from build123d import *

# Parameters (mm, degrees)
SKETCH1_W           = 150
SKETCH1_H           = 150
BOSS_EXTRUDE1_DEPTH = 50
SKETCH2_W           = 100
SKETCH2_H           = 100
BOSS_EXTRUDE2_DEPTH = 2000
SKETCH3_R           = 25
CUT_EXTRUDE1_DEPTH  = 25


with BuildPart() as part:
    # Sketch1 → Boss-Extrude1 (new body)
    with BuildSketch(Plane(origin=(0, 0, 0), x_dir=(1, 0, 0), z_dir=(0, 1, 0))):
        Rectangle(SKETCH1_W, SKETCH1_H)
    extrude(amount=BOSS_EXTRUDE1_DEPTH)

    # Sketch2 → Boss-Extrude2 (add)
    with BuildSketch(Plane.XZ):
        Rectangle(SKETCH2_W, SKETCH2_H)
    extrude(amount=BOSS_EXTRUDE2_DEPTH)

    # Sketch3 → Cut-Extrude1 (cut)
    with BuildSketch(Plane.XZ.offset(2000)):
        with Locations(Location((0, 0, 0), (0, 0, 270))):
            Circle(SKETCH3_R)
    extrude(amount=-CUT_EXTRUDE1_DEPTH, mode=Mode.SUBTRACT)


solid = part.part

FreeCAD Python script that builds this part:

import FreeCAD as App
import Part
import Sketcher

V = App.Vector

doc = App.newDocument("Part")
body = doc.addObject("PartDesign::Body", "Body")

# Sketch on XZ plane
sketch1 = doc.addObject("Sketcher::SketchObject", "Sketch")
body.addObject(sketch1)
sketch1.AttachmentSupport = (doc.XZ_Plane, [""])
sketch1.MapMode = "FlatFace"
sketch1.addGeometry([
    Part.LineSegment(V(-75, -75, 0), V(-75, 75, 0)),
    Part.LineSegment(V(-75, 75, 0), V(75, 75, 0)),
    Part.LineSegment(V(75, 75, 0), V(75, -75, 0)),
    Part.LineSegment(V(75, -75, 0), V(-75, -75, 0)),
], False)
sketch1.addConstraint([
    Sketcher.Constraint("Coincident", 0, 2, 1, 1),
    Sketcher.Constraint("Coincident", 1, 2, 2, 1),
    Sketcher.Constraint("Coincident", 2, 2, 3, 1),
    Sketcher.Constraint("Coincident", 3, 2, 0, 1),
    Sketcher.Constraint("Vertical", 0),
    Sketcher.Constraint("Horizontal", 1),
    Sketcher.Constraint("Vertical", 2),
    Sketcher.Constraint("Horizontal", 3),
    Sketcher.Constraint("Symmetric", 0, 2, 2, 2, -1, 1),
    Sketcher.Constraint("Equal", 3, 0),
    Sketcher.Constraint("DistanceX", 1, 1, 1, 2, 150.0),
])
pad1 = doc.addObject("PartDesign::Pad", "Pad")
body.addObject(pad1)
pad1.Profile = sketch1
pad1.Length = 50
pad1.Reversed = True

# Sketch on XZ plane
sketch2 = doc.addObject("Sketcher::SketchObject", "Sketch001")
body.addObject(sketch2)
sketch2.AttachmentSupport = (doc.XZ_Plane, [""])
sketch2.MapMode = "FlatFace"
sketch2.addGeometry([
    Part.LineSegment(V(-50, 50, 0), V(-50, -50, 0)),
    Part.LineSegment(V(-50, -50, 0), V(50, -50, 0)),
    Part.LineSegment(V(50, -50, 0), V(50, 50, 0)),
    Part.LineSegment(V(50, 50, 0), V(-50, 50, 0)),
], False)
sketch2.addConstraint([
    Sketcher.Constraint("Coincident", 0, 2, 1, 1),
    Sketcher.Constraint("Coincident", 1, 2, 2, 1),
    Sketcher.Constraint("Coincident", 2, 2, 3, 1),
    Sketcher.Constraint("Coincident", 3, 2, 0, 1),
    Sketcher.Constraint("Vertical", 0),
    Sketcher.Constraint("Horizontal", 1),
    Sketcher.Constraint("Vertical", 2),
    Sketcher.Constraint("Horizontal", 3),
    Sketcher.Constraint("Symmetric", 0, 2, 2, 2, -1, 1),
    Sketcher.Constraint("Equal", 3, 0),
    Sketcher.Constraint("DistanceX", 1, 1, 1, 2, 100.0),
])
pad2 = doc.addObject("PartDesign::Pad", "Pad001")
body.addObject(pad2)
pad2.Profile = sketch2
pad2.Length = 2000

# Sketch on XZ plane
sketch3 = doc.addObject("Sketcher::SketchObject", "Sketch002")
body.addObject(sketch3)
sketch3.AttachmentSupport = (doc.XZ_Plane, [""])
sketch3.MapMode = "FlatFace"
sketch3.AttachmentOffset = App.Placement(V(0, 0, 2000), App.Rotation())
sketch3.addGeometry(Part.Circle(V(0, 0, 0), V(0, 0, 1), 25), False)
sketch3.addConstraint([
    Sketcher.Constraint("Coincident", 0, 3, -1, 1),
    Sketcher.Constraint("Diameter", 0, 50.0),
])
pocket1 = doc.addObject("PartDesign::Pocket", "Pocket")
body.addObject(pocket1)
pocket1.Profile = sketch3
pocket1.Length = 25

doc.recompute()
